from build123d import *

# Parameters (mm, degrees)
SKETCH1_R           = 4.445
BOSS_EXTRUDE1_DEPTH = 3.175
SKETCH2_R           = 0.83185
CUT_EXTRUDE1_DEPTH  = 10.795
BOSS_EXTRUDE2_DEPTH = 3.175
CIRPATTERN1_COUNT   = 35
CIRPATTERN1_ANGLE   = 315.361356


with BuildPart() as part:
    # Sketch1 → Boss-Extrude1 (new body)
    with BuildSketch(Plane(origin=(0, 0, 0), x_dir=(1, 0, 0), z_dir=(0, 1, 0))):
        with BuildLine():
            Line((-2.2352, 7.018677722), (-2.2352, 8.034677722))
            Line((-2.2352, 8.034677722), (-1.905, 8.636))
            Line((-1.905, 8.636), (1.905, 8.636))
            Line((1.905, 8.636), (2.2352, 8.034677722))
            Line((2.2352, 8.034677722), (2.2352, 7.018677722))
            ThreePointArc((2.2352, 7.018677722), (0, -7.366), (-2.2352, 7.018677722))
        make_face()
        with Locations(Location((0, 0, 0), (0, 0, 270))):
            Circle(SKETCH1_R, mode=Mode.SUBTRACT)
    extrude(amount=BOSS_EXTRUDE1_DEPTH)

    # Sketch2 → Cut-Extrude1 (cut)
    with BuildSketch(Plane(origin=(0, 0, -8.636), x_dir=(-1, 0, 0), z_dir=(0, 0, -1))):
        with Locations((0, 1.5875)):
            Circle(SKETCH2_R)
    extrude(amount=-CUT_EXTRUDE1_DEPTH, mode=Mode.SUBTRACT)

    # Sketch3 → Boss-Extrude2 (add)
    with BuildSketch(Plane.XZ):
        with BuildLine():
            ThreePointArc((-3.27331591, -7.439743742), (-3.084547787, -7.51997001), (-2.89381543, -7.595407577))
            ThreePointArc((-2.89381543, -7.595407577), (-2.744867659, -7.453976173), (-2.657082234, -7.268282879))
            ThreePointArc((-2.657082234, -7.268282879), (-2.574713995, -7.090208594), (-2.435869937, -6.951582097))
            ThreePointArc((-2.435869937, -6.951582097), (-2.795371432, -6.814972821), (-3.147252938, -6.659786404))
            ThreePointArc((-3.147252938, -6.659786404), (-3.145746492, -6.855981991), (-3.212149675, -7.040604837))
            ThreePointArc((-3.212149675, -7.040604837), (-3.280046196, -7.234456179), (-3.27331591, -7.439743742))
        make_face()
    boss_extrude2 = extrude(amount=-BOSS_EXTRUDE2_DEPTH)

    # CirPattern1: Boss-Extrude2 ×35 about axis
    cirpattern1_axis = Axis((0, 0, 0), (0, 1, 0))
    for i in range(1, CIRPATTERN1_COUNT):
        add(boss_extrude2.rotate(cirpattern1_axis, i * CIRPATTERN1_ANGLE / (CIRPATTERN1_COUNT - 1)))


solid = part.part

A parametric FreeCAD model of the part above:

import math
import FreeCAD as App
import Part
import Sketcher
from FreeCAD import Vector
Q = App.Units.Quantity

doc = App.newDocument("Part")
params = doc.addObject("Spreadsheet::Sheet", "Params")
for row, (alias, value) in enumerate([
    ("sketch1_diameter", "0.35 in"),
    ("sketch1_radius", "0.29 in"),
    ("sketch1_width", "0.15 in"),
    ("sketch1_height", "0.04 in"),
    ("pad1_length", "0.125 in"),
    ("pocket1_length", "0.425 in"),
    ("sketch3_radius", "0.32 in"),
    ("sketch3_radius2", "0.29 in"),
    ("sketch3_radius3", "0.022 in"),
    ("pad2_length", "0.125 in"),
], start=1):
    params.set(f"A{row}", alias)
    params.set(f"B{row}", "=" + value)
    params.setAlias(f"B{row}", alias)

body = doc.addObject("PartDesign::Body", "Body")

sketch1 = body.newObject("Sketcher::SketchObject", "Sketch")
sketch1.AttachmentSupport = (doc.getObject("XZ_Plane"), [""])
sketch1.MapMode = "FlatFace"
sketch1.addGeometry([
    Part.LineSegment(Vector(-2.2352, -8.034678, 0), Vector(-2.2352, -7.018678, 0)),
    Part.ArcOfCircle(Part.Circle(Vector(0, 0, 0), Vector(0, 0, 1), 7.366), math.radians(-72.335167), math.radians(252.335167)),
    Part.LineSegment(Vector(2.2352, -7.018678, 0), Vector(2.2352, -8.034678, 0)),
    Part.LineSegment(Vector(2.2352, -8.034678, 0), Vector(1.905, -8.636, 0)),
    Part.LineSegment(Vector(1.905, -8.636, 0), Vector(-1.905, -8.636, 0)),
    Part.LineSegment(Vector(-1.905, -8.636, 0), Vector(-2.2352, -8.034678, 0)),
    Part.Circle(Vector(0, 0, 0), Vector(0, 0, 1), 4.445),
], False)
sketch1.addConstraint([
    Sketcher.Constraint("Coincident", 0, 2, 1, 2),
    Sketcher.Constraint("Coincident", 1, 1, 2, 1),
    Sketcher.Constraint("Coincident", 2, 2, 3, 1),
    Sketcher.Constraint("Coincident", 3, 2, 4, 1),
    Sketcher.Constraint("Coincident", 4, 2, 5, 1),
    Sketcher.Constraint("Coincident", 5, 2, 0, 1),
    Sketcher.Constraint("Vertical", 0),
    Sketcher.Constraint("Vertical", 2),
    Sketcher.Constraint("Horizontal", 4),
    Sketcher.Constraint("Coincident", 1, 3, -1, 1),
    Sketcher.Constraint("Coincident", 6, 3, -1, 1),
    Sketcher.Constraint("Symmetric", 2, 2, 5, 2, -2),
    Sketcher.Constraint("Equal", 3, 5),
    Sketcher.Constraint("Diameter", 6, Q("0.35 in")),
    Sketcher.Constraint("Radius", 1, Q("0.29 in")),
    Sketcher.Constraint("DistanceX", 4, 2, 4, 1, Q("0.15 in")),
    Sketcher.Constraint("DistanceY", 0, 1, 0, 2, Q("0.04 in")),
    Sketcher.Constraint("DistanceY", 3, 2, -1, 1, Q("0.34 in")),
    Sketcher.Constraint("DistanceX", 0, 2, -1, 1, Q("0.088 in")),
])
sketch1.setExpression("Constraints[13]", "Params.sketch1_diameter")
sketch1.setExpression("Constraints[14]", "Params.sketch1_radius")
sketch1.setExpression("Constraints[15]", "Params.sketch1_width")
sketch1.setExpression("Constraints[16]", "Params.sketch1_height")
pad1 = body.newObject("PartDesign::Pad", "Pad")
pad1.Profile = sketch1
pad1.setExpression("Length", "Params.pad1_length")
pad1.Reversed = True

sketch2 = body.newObject("Sketcher::SketchObject", "Sketch001")
sketch2.AttachmentSupport = (doc.getObject("XY_Plane"), [""])
sketch2.MapMode = "FlatFace"
sketch2.AttachmentOffset = App.Placement(Vector(0, 0, -0.34 * 25.4), App.Rotation())
sketch2.addGeometry(Part.Circle(Vector(0, 1.5875, 0), Vector(0, 0, 1), 0.83185), False)
sketch2.addConstraint([
    Sketcher.Constraint("PointOnObject", 0, 3, -2),
    Sketcher.Constraint("Diameter", 0, Q("0.0655 in")),
    Sketcher.Constraint("DistanceY", -1, 1, 0, 3, Q("0.0625 in")),
])
pocket1 = body.newObject("PartDesign::Pocket", "Pocket")
pocket1.Profile = sketch2
pocket1.setExpression("Length", "Params.pocket1_length")
pocket1.Reversed = True

sketch3 = body.newObject("Sketcher::SketchObject", "Sketch002")
sketch3.AttachmentSupport = (doc.getObject("XZ_Plane"), [""])
sketch3.MapMode = "FlatFace"
sketch3.addGeometry([
    Part.ArcOfCircle(Part.Circle(Vector(0, -0.000001, 0), Vector(0, 0, 1), 8.127999), math.radians(-113.748389), math.radians(-110.856611)),
    Part.ArcOfCircle(Part.Circle(Vector(-3.197562, -7.126371, 0), Vector(0, 0, 1), 0.5588), math.radians(-57.073041), math.radians(-14.711881)),
    Part.ArcOfCircle(Part.Circle(Vector(-2.116602, -7.410195, 0), Vector(0, 0, 1), 0.5588), math.radians(124.844061), math.radians(165.288119)),
    Part.ArcOfCircle(Part.Circle(Vector(0, 0, 0), Vector(0, 0, 1), 7.366), math.radians(-115.294278), math.radians(-109.310722)),
    Part.ArcOfCircle(Part.Circle(Vector(-3.696605, -6.762108, 0), Vector(0, 0, 1), 0.5588), math.radians(-29.893119), math.radians(10.550939)),
    Part.ArcOfCircle(Part.Circle(Vector(-2.727694, -7.319102, 0), Vector(0, 0, 1), 0.5588), math.radians(150.106881), math.radians(192.468041)),
], False)
sketch3.addConstraint([
    Sketcher.Constraint("Coincident", 0, 2, 1, 1),
    Sketcher.Constraint("Tangent", 1, 2, 2, 2),
    Sketcher.Constraint("Coincident", 2, 1, 3, 2),
    Sketcher.Constraint("Coincident", 3, 1, 4, 2),
    Sketcher.Constraint("Tangent", 4, 1, 5, 1),
    Sketcher.Constraint("Coincident", 5, 2, 0, 1),
    Sketcher.Constraint("Coincident", 0, 3, -1, 1),
    Sketcher.Constraint("Coincident", 3, 3, -1, 1),
    Sketcher.Constraint("Equal", 1, 2),
    Sketcher.Constraint("Equal", 2, 4),
    Sketcher.Constraint("Equal", 4, 5),
    Sketcher.Constraint("Radius", 0, Q("0.32 in")),
    Sketcher.Constraint("Radius", 3, Q("0.29 in")),
    Sketcher.Constraint("Radius", 1, Q("0.022 in")),
    Sketcher.Constraint("DistanceY", 5, 3, -1, 1, Q("7.319102 mm")),
    Sketcher.Constraint("DistanceY", 0, 2, 4, 3, Q("0.8333 mm")),
    Sketcher.Constraint("DistanceY", 1, 2, 2, 1, Q("0.316701 mm")),
    Sketcher.Constraint("DistanceX", 5, 2, 0, 2, Q("0.3795 mm")),
    Sketcher.Constraint("DistanceY", 1, 3, -1, 1, Q("7.126371 mm")),
    Sketcher.Constraint("DistanceY", 4, 3, -1, 1, Q("6.762108 mm")),
])
sketch3.setExpression("Constraints[11]", "Params.sketch3_radius")
sketch3.setExpression("Constraints[12]", "Params.sketch3_radius2")
sketch3.setExpression("Constraints[13]", "Params.sketch3_radius3")
pad2 = body.newObject("PartDesign::Pad", "Pad001")
pad2.Profile = sketch3
pad2.setExpression("Length", "Params.pad2_length")
pad2.Reversed = True
doc.recompute()

polarpattern = body.newObject("PartDesign::PolarPattern", "PolarPattern")
polarpattern.Originals = [pad2]
polarpattern.Axis = (doc.getObject("Y_Axis"), [""])
polarpattern.Angle = 315.361356
polarpattern.Occurrences = 35
body.Tip = polarpattern

doc.recompute()
